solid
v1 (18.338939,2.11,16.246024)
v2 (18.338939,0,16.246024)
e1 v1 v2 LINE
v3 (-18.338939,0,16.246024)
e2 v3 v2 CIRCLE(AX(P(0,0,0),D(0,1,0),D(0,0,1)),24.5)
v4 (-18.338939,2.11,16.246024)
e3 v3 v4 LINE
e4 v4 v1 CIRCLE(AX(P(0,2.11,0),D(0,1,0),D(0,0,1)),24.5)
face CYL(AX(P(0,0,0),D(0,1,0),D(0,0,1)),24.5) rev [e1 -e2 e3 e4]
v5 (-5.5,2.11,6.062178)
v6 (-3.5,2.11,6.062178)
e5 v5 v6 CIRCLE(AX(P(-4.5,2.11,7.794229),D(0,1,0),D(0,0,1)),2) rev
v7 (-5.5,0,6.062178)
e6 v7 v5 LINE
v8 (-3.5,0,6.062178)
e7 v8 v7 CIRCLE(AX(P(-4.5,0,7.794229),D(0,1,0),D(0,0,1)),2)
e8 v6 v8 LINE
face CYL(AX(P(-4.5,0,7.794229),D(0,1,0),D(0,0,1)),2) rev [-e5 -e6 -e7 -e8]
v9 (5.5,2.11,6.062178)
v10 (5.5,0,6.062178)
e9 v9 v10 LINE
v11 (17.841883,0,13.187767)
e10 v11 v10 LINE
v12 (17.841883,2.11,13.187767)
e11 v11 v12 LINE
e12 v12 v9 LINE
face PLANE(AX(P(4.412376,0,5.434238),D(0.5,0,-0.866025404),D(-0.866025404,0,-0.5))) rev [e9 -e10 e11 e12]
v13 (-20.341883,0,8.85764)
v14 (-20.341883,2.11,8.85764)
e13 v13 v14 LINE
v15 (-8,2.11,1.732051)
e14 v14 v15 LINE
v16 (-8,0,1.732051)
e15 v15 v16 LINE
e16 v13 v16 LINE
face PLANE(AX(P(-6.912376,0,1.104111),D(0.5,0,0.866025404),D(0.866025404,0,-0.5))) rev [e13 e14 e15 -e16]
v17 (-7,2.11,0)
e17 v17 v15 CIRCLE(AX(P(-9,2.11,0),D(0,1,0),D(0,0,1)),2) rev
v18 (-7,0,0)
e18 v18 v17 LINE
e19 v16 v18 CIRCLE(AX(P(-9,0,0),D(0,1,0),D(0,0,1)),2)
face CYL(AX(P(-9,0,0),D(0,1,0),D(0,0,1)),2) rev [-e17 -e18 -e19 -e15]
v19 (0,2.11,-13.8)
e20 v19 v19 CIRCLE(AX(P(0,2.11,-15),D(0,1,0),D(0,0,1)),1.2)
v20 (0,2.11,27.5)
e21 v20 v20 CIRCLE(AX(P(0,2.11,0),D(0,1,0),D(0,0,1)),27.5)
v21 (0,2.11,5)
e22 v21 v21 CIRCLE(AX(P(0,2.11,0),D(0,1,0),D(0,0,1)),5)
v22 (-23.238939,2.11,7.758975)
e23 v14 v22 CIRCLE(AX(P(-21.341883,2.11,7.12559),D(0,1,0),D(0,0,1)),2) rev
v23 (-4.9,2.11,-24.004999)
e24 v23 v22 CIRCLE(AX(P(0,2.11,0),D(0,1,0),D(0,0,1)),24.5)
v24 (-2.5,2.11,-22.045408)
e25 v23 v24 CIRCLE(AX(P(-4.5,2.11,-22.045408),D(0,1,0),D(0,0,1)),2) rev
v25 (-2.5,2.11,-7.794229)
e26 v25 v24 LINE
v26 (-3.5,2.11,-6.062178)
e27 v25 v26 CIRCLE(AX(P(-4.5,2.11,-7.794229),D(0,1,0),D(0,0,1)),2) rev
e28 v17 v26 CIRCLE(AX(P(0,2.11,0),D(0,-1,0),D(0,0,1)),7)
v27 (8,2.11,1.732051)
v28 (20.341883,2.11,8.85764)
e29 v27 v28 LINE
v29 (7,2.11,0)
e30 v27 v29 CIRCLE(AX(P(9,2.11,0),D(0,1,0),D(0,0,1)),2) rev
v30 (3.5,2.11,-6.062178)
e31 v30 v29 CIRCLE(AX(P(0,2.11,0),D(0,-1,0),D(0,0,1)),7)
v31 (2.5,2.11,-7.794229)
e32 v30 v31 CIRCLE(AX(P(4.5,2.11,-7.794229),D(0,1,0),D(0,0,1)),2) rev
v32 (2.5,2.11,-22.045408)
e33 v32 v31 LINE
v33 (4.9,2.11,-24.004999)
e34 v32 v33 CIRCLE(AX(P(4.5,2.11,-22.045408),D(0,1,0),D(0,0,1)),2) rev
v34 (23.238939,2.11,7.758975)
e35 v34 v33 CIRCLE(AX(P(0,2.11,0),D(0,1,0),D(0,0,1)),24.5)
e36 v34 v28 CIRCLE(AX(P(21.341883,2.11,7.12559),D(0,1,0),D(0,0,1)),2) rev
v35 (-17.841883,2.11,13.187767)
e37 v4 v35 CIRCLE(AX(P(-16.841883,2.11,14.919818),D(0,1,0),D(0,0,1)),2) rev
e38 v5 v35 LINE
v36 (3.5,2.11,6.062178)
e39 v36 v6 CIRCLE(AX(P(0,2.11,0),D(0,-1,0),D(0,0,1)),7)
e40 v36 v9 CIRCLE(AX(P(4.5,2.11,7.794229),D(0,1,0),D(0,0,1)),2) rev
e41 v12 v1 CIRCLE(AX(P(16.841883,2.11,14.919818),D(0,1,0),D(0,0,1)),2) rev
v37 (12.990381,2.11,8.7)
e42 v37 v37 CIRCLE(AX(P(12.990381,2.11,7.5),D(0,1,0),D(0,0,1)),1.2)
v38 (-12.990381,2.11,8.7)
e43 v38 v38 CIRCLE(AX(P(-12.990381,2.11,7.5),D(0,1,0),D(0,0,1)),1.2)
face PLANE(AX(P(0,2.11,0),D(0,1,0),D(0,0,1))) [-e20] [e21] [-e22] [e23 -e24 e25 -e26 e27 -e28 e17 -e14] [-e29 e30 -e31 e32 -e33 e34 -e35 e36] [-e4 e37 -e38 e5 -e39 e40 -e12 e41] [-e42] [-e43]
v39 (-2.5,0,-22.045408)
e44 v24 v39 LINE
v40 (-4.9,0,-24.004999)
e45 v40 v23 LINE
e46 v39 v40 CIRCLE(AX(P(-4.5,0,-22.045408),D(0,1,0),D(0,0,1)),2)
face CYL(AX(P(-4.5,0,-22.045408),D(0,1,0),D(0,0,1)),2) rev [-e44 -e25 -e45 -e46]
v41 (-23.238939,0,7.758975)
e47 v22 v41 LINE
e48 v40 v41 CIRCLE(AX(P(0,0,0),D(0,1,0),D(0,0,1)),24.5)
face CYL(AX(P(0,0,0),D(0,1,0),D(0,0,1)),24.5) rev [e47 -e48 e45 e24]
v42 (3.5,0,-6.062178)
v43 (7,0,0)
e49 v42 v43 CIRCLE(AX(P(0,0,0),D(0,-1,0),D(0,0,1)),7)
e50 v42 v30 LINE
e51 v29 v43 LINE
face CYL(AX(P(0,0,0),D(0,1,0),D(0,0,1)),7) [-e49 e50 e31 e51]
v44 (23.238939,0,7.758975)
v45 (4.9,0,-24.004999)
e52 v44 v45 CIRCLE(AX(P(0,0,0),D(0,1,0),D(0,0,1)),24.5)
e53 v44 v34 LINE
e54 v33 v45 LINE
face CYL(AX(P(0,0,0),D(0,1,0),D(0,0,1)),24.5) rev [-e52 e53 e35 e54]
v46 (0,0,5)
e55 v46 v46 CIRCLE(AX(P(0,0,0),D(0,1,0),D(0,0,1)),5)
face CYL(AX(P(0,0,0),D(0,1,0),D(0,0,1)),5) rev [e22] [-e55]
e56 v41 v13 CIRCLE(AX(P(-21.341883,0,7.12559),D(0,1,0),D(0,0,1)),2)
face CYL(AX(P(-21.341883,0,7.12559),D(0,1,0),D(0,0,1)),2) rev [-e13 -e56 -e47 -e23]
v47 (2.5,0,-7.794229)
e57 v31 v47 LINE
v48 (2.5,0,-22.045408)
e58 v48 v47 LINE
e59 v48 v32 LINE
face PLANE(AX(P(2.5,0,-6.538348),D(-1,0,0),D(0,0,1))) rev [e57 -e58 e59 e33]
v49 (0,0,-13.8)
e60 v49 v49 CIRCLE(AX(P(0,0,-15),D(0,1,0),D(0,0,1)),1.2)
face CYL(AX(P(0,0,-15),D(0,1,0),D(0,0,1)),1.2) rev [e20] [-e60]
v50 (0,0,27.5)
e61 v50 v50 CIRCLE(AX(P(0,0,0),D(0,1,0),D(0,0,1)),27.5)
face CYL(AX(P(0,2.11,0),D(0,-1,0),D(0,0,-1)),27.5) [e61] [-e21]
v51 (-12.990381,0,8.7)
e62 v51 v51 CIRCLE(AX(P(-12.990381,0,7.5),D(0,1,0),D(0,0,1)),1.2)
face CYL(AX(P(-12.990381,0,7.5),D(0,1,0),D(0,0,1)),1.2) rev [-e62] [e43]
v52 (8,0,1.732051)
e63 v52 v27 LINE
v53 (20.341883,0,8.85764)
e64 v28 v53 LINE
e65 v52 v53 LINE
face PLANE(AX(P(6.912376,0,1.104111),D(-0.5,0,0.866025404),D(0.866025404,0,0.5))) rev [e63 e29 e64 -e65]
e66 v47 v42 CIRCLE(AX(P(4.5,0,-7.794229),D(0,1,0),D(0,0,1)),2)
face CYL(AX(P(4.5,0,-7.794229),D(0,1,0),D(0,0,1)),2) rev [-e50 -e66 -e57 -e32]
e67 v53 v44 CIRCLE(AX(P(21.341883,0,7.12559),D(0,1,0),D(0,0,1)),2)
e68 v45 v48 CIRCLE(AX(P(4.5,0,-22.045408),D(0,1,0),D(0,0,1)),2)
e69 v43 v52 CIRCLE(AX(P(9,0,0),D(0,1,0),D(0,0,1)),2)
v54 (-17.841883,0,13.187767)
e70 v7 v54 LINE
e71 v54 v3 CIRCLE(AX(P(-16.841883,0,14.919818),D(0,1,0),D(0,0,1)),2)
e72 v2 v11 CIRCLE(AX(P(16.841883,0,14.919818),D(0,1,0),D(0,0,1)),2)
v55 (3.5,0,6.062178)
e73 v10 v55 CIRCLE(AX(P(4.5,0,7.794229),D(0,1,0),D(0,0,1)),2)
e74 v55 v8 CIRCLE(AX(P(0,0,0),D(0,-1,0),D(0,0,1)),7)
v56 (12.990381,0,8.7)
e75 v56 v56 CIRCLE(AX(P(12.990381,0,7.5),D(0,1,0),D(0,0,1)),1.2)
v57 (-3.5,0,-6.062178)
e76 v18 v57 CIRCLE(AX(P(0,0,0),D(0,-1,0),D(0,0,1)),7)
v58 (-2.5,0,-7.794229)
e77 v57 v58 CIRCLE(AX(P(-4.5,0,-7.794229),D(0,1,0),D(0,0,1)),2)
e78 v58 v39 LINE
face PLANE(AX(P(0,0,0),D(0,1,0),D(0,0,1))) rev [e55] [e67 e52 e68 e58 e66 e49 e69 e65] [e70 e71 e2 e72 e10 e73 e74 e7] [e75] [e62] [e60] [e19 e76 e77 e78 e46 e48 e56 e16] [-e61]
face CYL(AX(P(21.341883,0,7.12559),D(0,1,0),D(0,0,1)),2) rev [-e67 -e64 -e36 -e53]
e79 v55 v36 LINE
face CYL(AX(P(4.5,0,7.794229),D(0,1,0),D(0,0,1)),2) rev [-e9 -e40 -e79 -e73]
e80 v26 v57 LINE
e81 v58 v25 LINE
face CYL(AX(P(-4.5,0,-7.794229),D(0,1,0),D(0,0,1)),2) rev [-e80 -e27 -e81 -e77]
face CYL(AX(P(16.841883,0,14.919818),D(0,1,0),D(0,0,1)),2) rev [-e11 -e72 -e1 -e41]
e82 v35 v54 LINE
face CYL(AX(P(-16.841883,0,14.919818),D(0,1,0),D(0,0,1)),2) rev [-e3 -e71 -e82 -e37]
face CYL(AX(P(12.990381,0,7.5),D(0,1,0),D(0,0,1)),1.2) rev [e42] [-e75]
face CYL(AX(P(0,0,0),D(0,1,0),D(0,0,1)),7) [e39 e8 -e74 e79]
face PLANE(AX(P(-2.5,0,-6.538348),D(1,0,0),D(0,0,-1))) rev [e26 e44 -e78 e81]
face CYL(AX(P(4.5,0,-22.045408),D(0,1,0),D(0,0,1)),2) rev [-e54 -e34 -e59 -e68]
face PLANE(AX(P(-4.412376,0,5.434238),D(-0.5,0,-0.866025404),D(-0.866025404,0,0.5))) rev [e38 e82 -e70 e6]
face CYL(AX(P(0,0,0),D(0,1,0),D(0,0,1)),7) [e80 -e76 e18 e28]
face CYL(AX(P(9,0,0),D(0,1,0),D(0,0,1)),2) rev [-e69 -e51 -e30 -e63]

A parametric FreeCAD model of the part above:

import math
import FreeCAD as App
import Part
import Sketcher

V = App.Vector
Q = App.Units.Quantity


def edges_at(feature, points):
    """Names of the edges that pass closest to the given points."""
    edges = feature.Shape.Edges
    near = lambda p: min(range(len(edges)), key=lambda i: edges[i].distToShape(Part.Vertex(*p))[0])
    return sorted({f"Edge{near(p) + 1}" for p in points})

doc = App.newDocument("Part")
body = doc.addObject("PartDesign::Body", "Body")

# Sketch on XZ plane
sketch1 = body.newObject("Sketcher::SketchObject", "Sketch")
sketch1.AttachmentSupport = (doc.getObject("XZ_Plane"), [""])
sketch1.MapMode = "FlatFace"
sketch1.addGeometry(Part.Circle(V(0, 0, 0), V(0, 0, 1), 28), False)
sketch1.addConstraint([
    Sketcher.Constraint("Coincident", 0, 3, -1, 1),
    Sketcher.Constraint("Diameter", 0, Q("55 mm")),
])
pad1 = body.newObject("PartDesign::Pad", "Pad")
pad1.Profile = sketch1
pad1.Length = 2.11
pad1.Reversed = True

# Sketch on XZ plane
sketch2 = body.newObject("Sketcher::SketchObject", "Sketch001")
sketch2.AttachmentSupport = (doc.getObject("XZ_Plane"), [""])
sketch2.MapMode = "FlatFace"
sketch2.AttachmentOffset = App.Placement(V(0, 0, -2.11), App.Rotation())
sketch2.addGeometry([
    Part.Circle(V(0, -15, 0), V(0, 0, 1), 1.2),  # 0
    Part.Circle(V(13, 7.5, 0), V(0, 0, 1), 1.2),  # 1
    Part.Circle(V(-13, 7.5, 0), V(0, 0, 1), 1.2),  # 2
    Part.Circle(V(0, 0, 0), V(0, 0, 1), 5),  # 3
    Part.LineSegment(V(-2.5, -6.5, 0), V(-2.5, -24.4, 0)),  # 4
    Part.ArcOfCircle(Part.Circle(V(0, 0, 0), V(0, 0, 1), 24.5), math.radians(156), math.radians(264)),  # 5
    Part.LineSegment(V(-22.4, 10, 0), V(-6.9, 1.1, 0)),  # 6
    Part.ArcOfCircle(Part.Circle(V(0, 0, 0), V(0, 0, 1), 7), math.radians(171), math.radians(249)),  # 7
    Part.LineSegment(V(2.5, -24.4, 0), V(2.5, -6.5, 0)),  # 8
    Part.ArcOfCircle(Part.Circle(V(0, 0, 0), V(0, 0, 1), 7), math.radians(-69), math.radians(9)),  # 9
    Part.LineSegment(V(6.9, 1.1, 0), V(22.4, 10, 0)),  # 10
    Part.ArcOfCircle(Part.Circle(V(0, 0, 0), V(0, 0, 1), 24.5), math.radians(-84), math.radians(24)),  # 11
    Part.LineSegment(V(19.9, 14.4, 0), V(4.4, 5.4, 0)),  # 12
    Part.ArcOfCircle(Part.Circle(V(0, 0, 0), V(0, 0, 1), 7), math.radians(51), math.radians(129)),  # 13
    Part.LineSegment(V(-4.4, 5.4, 0), V(-19.9, 14.4, 0)),  # 14
    Part.ArcOfCircle(Part.Circle(V(0, 0, 0), V(0, 0, 1), 24.5), math.radians(36), math.radians(144)),  # 15
], False)
sketch2.addConstraint([
    Sketcher.Constraint("Coincident", 4, 2, 5, 2),
    Sketcher.Constraint("Coincident", 5, 1, 6, 1),
    Sketcher.Constraint("Coincident", 6, 2, 7, 1),
    Sketcher.Constraint("Coincident", 7, 2, 4, 1),
    Sketcher.Constraint("Coincident", 8, 2, 9, 1),
    Sketcher.Constraint("Coincident", 9, 2, 10, 1),
    Sketcher.Constraint("Coincident", 10, 2, 11, 2),
    Sketcher.Constraint("Coincident", 11, 1, 8, 1),
    Sketcher.Constraint("Coincident", 12, 2, 13, 1),
    Sketcher.Constraint("Coincident", 13, 2, 14, 1),
    Sketcher.Constraint("Coincident", 14, 2, 15, 2),
    Sketcher.Constraint("Coincident", 15, 1, 12, 1),
    Sketcher.Constraint("Vertical", 4),
    Sketcher.Constraint("Vertical", 8),
    Sketcher.Constraint("Coincident", 3, 3, -1, 1),
    Sketcher.Constraint("Coincident", 5, 3, -1, 1),
    Sketcher.Constraint("Coincident", 7, 3, -1, 1),
    Sketcher.Constraint("Coincident", 9, 3, -1, 1),
    Sketcher.Constraint("Coincident", 11, 3, -1, 1),
    Sketcher.Constraint("Coincident", 13, 3, -1, 1),
    Sketcher.Constraint("Coincident", 15, 3, -1, 1),
    Sketcher.Constraint("Equal", 0, 1),
    Sketcher.Constraint("Equal", 1, 2),
    Sketcher.Constraint("Equal", 7, 9),
    Sketcher.Constraint("Equal", 5, 11),
    Sketcher.Constraint("Equal", 9, 13),
    Sketcher.Constraint("Equal", 11, 15),
    Sketcher.Constraint("Symmetric", 1, 3, 2, 3, -2),
    Sketcher.Constraint("PointOnObject", 0, 3, -2),
    Sketcher.Constraint("Parallel", 10, 12),
    Sketcher.Constraint("Parallel", 6, 14),
    Sketcher.Constraint("Horizontal", 7, 2, 8, 2),
    Sketcher.Constraint("Horizontal", 6, 2, 9, 2),
    Sketcher.Constraint("Horizontal", 5, 1, 10, 2),
    Sketcher.Constraint("Horizontal", 12, 2, 13, 2),
    Sketcher.Constraint("Equal", 10, 12),
    Sketcher.Constraint("Diameter", 3, Q("10 mm")),
    Sketcher.Constraint("Radius", 7, Q("7 mm")),
    Sketcher.Constraint("Diameter", 0, Q("2.4 mm")),
    Sketcher.Constraint("Radius", 5, Q("24.5 mm")),
    Sketcher.Constraint("Angle", 6, Q("-30 deg")),
    Sketcher.Constraint("DistanceY", 0, 3, -1, 1, Q("15 mm")),
    Sketcher.Constraint("DistanceX", 7, 2, 8, 2, Q("5 mm")),
    Sketcher.Constraint("DistanceY", -1, 1, 1, 3, Q("7.5 mm")),
    Sketcher.Constraint("DistanceX", 12, 2, 9, 2, Q("2.5 mm")),
    Sketcher.Constraint("DistanceX", -1, 1, 1, 3, Q("12.990381 mm")),
])
pocket1 = body.newObject("PartDesign::Pocket", "Pocket")
pocket1.Profile = sketch2
pocket1.Type = "ThroughAll"
pocket1.Reversed = True
doc.recompute()

fillet = body.newObject("PartDesign::Fillet", "Fillet")
fillet.Base = (pocket1, edges_at(pocket1, [
    (-2.5, 1.055, -6.538),
    (-6.912, 1.055, 1.104),
    (-22.357, 1.055, 10.021),
    (-2.5, 1.055, -24.372),
    (-4.412, 1.055, 5.434),
    (4.412, 1.055, 5.434),
    (19.857, 1.055, 14.351),
    (-19.857, 1.055, 14.351),
    (6.912, 1.055, 1.104),
    (2.5, 1.055, -6.538),
    (2.5, 1.055, -24.372),
    (22.357, 1.055, 10.021),
]))
fillet.Radius = 2

doc.recompute()
